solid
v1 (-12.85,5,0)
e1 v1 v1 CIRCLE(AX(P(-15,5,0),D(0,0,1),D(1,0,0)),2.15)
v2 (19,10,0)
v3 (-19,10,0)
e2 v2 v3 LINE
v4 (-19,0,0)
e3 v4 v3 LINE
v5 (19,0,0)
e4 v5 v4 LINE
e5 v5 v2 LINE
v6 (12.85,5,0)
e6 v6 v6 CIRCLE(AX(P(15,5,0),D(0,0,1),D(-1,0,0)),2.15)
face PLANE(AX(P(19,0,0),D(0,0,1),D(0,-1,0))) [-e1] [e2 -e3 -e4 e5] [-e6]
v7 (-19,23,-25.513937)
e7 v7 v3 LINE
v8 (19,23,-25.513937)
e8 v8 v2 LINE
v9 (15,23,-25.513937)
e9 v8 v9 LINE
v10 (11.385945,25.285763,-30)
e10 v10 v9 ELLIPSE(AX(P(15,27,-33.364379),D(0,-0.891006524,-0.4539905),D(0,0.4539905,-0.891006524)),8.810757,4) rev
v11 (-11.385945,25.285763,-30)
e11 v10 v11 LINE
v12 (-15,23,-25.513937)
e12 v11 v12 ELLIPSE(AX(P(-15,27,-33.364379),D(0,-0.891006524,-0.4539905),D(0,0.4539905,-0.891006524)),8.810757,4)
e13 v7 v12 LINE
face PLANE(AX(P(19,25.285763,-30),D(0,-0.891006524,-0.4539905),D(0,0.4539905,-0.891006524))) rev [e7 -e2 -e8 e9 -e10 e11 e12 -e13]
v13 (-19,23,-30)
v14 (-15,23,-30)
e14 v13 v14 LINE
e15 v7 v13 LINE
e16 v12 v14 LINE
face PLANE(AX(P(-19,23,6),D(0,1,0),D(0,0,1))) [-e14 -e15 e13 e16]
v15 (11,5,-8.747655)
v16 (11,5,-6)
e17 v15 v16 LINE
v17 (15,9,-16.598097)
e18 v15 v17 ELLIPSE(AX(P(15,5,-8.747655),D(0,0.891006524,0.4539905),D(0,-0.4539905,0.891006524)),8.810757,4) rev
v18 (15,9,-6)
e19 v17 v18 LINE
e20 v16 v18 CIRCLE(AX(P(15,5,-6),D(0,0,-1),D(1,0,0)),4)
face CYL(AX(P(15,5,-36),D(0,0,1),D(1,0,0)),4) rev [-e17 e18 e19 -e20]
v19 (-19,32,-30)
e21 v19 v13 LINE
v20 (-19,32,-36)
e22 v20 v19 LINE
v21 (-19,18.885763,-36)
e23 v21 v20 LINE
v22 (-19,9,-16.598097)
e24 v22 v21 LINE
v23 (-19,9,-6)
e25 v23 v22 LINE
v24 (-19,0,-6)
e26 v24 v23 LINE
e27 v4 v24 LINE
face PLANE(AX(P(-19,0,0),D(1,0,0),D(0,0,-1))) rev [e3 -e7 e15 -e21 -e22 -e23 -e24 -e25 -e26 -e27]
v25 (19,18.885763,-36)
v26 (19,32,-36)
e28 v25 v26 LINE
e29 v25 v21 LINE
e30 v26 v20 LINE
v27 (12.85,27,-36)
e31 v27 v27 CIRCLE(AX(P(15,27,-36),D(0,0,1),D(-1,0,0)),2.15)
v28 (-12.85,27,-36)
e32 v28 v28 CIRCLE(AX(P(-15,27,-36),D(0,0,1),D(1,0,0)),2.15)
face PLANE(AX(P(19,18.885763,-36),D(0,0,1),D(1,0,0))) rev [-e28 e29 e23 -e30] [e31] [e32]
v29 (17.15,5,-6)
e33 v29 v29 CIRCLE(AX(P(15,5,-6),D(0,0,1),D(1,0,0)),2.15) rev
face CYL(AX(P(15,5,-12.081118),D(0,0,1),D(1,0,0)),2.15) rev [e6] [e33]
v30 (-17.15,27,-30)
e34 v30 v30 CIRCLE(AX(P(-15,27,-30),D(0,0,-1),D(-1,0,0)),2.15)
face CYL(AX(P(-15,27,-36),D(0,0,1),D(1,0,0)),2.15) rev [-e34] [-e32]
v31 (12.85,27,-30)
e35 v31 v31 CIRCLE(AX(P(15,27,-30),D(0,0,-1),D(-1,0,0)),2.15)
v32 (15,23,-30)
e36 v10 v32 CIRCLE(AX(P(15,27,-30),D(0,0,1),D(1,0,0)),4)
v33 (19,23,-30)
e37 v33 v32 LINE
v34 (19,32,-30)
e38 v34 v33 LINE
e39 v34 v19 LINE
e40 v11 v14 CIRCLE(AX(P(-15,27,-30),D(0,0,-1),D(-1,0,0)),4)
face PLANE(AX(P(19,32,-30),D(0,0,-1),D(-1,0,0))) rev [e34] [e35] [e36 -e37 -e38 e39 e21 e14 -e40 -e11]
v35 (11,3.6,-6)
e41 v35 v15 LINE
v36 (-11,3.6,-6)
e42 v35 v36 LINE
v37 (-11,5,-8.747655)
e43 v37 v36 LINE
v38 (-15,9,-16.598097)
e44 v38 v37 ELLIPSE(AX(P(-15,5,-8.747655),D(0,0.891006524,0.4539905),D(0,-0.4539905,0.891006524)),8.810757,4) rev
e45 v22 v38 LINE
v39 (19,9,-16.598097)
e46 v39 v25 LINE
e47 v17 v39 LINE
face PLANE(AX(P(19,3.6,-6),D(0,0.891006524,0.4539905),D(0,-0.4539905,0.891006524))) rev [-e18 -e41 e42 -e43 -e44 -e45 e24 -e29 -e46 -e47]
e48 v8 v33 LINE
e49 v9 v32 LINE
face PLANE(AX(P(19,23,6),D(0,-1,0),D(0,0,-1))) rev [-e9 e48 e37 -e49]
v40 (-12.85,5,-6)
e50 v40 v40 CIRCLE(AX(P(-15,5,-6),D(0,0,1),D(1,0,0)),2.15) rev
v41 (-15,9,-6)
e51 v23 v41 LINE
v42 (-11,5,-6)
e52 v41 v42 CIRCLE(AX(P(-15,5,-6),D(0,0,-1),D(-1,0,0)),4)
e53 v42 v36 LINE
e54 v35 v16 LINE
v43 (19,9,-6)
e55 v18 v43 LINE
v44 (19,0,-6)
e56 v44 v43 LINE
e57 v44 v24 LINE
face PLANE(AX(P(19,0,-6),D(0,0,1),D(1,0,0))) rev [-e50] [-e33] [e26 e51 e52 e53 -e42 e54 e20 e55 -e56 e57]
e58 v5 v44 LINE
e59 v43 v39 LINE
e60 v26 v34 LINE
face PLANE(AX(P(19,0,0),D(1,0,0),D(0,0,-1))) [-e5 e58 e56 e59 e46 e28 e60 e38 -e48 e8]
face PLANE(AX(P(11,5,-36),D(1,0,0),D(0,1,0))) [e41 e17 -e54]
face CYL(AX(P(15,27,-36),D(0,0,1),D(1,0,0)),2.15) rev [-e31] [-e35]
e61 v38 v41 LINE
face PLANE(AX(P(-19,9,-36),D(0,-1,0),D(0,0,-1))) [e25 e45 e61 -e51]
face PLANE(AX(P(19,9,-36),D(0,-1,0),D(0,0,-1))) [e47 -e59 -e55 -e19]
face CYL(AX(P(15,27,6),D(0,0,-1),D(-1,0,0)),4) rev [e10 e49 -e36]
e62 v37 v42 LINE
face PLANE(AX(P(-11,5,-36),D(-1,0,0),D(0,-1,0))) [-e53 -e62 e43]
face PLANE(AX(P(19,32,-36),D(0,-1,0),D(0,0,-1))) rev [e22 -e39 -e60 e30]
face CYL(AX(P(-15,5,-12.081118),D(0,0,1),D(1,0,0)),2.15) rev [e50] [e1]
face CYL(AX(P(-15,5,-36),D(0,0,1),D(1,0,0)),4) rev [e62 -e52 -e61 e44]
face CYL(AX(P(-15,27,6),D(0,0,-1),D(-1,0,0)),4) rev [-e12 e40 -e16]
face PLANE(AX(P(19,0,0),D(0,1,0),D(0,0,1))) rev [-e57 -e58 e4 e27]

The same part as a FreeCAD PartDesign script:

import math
import FreeCAD as App
import Part
import Sketcher
from FreeCAD import Vector
Q = App.Units.Quantity


def add_polygon(sketch, points):
    """Adds a closed chain of lines whose ends are joined by coincident constraints."""
    first, n = sketch.GeometryCount, len(points)
    for a, b in zip(points, points[1:] + points[:1]):
        sketch.addGeometry(Part.LineSegment(App.Vector(*a, 0), App.Vector(*b, 0)), False)
    for i in range(n):
        sketch.addConstraint(Sketcher.Constraint("Coincident", first + i, 2, first + (i + 1) % n, 1))

doc = App.newDocument("Part")
body = doc.addObject("PartDesign::Body", "Body")

# Sketch on YZ plane
sketch1 = body.newObject("Sketcher::SketchObject", "Sketch")
sketch1.AttachmentSupport = (doc.getObject("YZ_Plane"), [""])
sketch1.MapMode = "FlatFace"
add_polygon(sketch1, [(0, 0), (0, -6), (3.6, -6), (18.9, -36), (32, -36), (32, -30), (25.3, -30), (10, 0)])  # lines 0-7
sketch1.addConstraint([
    Sketcher.Constraint("Vertical", 0),
    Sketcher.Constraint("Horizontal", 1),
    Sketcher.Constraint("Horizontal", 3),
    Sketcher.Constraint("Vertical", 4),
    Sketcher.Constraint("Horizontal", 5),
    Sketcher.Constraint("Horizontal", 7),
    Sketcher.Constraint("Coincident", 7, 2, -1, 1),
    Sketcher.Constraint("Parallel", 2, 6),
    Sketcher.Constraint("Equal", 0, 4),
    Sketcher.Constraint("DistanceX", 7, 2, 7, 1, 10.0),
    Sketcher.Constraint("DistanceY", 0, 2, 0, 1, 6.0),
    Sketcher.Constraint("Angle", 2, Q("-63 deg")),
    Sketcher.Constraint("DistanceX", 1, 1, 1, 2, 3.6),
    Sketcher.Constraint("DistanceY", 2, 2, -1, 1, 36.0),
    Sketcher.Constraint("DistanceX", -1, 1, 3, 2, 32.0),
])
pad1 = body.newObject("PartDesign::Pad", "Pad")
pad1.Profile = sketch1
pad1.Length = 38
pad1.Midplane = True

# Sketch on XY plane
sketch2 = body.newObject("Sketcher::SketchObject", "Sketch001")
sketch2.AttachmentSupport = (doc.getObject("XY_Plane"), [""])
sketch2.MapMode = "FlatFace"
sketch2.AttachmentOffset = App.Placement(Vector(0, 0, -30), App.Rotation())
sketch2.addGeometry([
    Part.Circle(Vector(-15, 27, 0), Vector(0, 0, 1), 2.1),
    Part.Circle(Vector(15, 27, 0), Vector(0, 0, 1), 2.1),
], False)
sketch2.addConstraint([
    Sketcher.Constraint("Equal", 0, 1),
    Sketcher.Constraint("Symmetric", 0, 3, 1, 3, -2),
    Sketcher.Constraint("Diameter", 0, 4.3),
    Sketcher.Constraint("DistanceX", 0, 3, -1, 1, 15.0),
    Sketcher.Constraint("DistanceY", -1, 1, 0, 3, 27.0),
])
pocket1 = body.newObject("PartDesign::Pocket", "Pocket")
pocket1.Profile = sketch2
pocket1.Type = "ThroughAll"
pocket1.Midplane = True

# Sketch on XY plane
sketch3 = body.newObject("Sketcher::SketchObject", "Sketch002")
sketch3.AttachmentSupport = (doc.getObject("XY_Plane"), [""])
sketch3.MapMode = "FlatFace"
sketch3.addGeometry([
    Part.Circle(Vector(-15, 5, 0), Vector(0, 0, 1), 2.1),
    Part.Circle(Vector(15, 5, 0), Vector(0, 0, 1), 2.1),
], False)
sketch3.addConstraint([
    Sketcher.Constraint("Equal", 0, 1),
    Sketcher.Constraint("Symmetric", 0, 3, 1, 3, -2),
    Sketcher.Constraint("Diameter", 0, 4.3),
    Sketcher.Constraint("DistanceX", 0, 3, -1, 1, 15.0),
    Sketcher.Constraint("DistanceY", -1, 1, 0, 3, 5.0),
])
pocket2 = body.newObject("PartDesign::Pocket", "Pocket001")
pocket2.Profile = sketch3
pocket2.Length = 6

# Sketch on XY plane
sketch4 = body.newObject("Sketcher::SketchObject", "Sketch003")
sketch4.AttachmentSupport = (doc.getObject("XY_Plane"), [""])
sketch4.MapMode = "FlatFace"
sketch4.AttachmentOffset = App.Placement(Vector(0, 0, -6), App.Rotation())
sketch4.addGeometry([
    Part.LineSegment(Vector(19, 9, 0), Vector(19, 0, 0)),  # 0
    Part.LineSegment(Vector(19, 0, 0), Vector(11, 0, 0)),  # 1
    Part.LineSegment(Vector(11, 0, 0), Vector(11, 5, 0)),  # 2
    Part.ArcOfCircle(Part.Circle(Vector(15, 5, 0), Vector(0, 0, 1), 4), math.radians(90), math.radians(180)),  # 3
    Part.LineSegment(Vector(15, 9, 0), Vector(19, 9, 0)),  # 4
    Part.LineSegment(Vector(-19, 0, 0), Vector(-19, 9, 0)),  # 5
    Part.LineSegment(Vector(-19, 9, 0), Vector(-15, 9, 0)),  # 6
    Part.ArcOfCircle(Part.Circle(Vector(-15, 5, 0), Vector(0, 0, 1), 4), math.radians(0), math.radians(90)),  # 7
    Part.LineSegment(Vector(-11, 5, 0), Vector(-11, 0, 0)),  # 8
    Part.LineSegment(Vector(-11, 0, 0), Vector(-19, 0, 0)),  # 9
], False)
sketch4.addConstraint([
    Sketcher.Constraint("Coincident", 0, 2, 1, 1),
    Sketcher.Constraint("Coincident", 1, 2, 2, 1),
    Sketcher.Constraint("Tangent", 2, 2, 3, 2),
    Sketcher.Constraint("Tangent", 3, 1, 4, 1),
    Sketcher.Constraint("Coincident", 4, 2, 0, 1),
    Sketcher.Constraint("Coincident", 5, 2, 6, 1),
    Sketcher.Constraint("Tangent", 6, 2, 7, 2),
    Sketcher.Constraint("Tangent", 7, 1, 8, 1),
    Sketcher.Constraint("Coincident", 8, 2, 9, 1),
    Sketcher.Constraint("Coincident", 9, 2, 5, 1),
    Sketcher.Constraint("Vertical", 0),
    Sketcher.Constraint("Horizontal", 1),
    Sketcher.Constraint("Vertical", 2),
    Sketcher.Constraint("Horizontal", 4),
    Sketcher.Constraint("Vertical", 5),
    Sketcher.Constraint("Horizontal", 6),
    Sketcher.Constraint("Vertical", 8),
    Sketcher.Constraint("Horizontal", 9),
    Sketcher.Constraint("Equal", 3, 7),
    Sketcher.Constraint("Symmetric", 1, 2, 8, 2, -1, 1),
    Sketcher.Constraint("Symmetric", 4, 2, 5, 2, -2),
    Sketcher.Constraint("PointOnObject", 0, 2, -1),
    Sketcher.Constraint("Radius", 3, 4.0),
    Sketcher.Constraint("DistanceX", 1, 2, 1, 1, 8.0),
    Sketcher.Constraint("DistanceY", 0, 2, 0, 1, 9.0),
    Sketcher.Constraint("DistanceX", -1, 1, 3, 3, 15.0),
])
pocket3 = body.newObject("PartDesign::Pocket", "Pocket002")
pocket3.Profile = sketch4
pocket3.Type = "ThroughAll"

# Sketch on XY plane
sketch5 = body.newObject("Sketcher::SketchObject", "Sketch004")
sketch5.AttachmentSupport = (doc.getObject("XY_Plane"), [""])
sketch5.MapMode = "FlatFace"
sketch5.AttachmentOffset = App.Placement(Vector(0, 0, -30), App.Rotation())
sketch5.addGeometry([
    Part.LineSegment(Vector(19, 32, 0), Vector(11, 32, 0)),  # 0
    Part.LineSegment(Vector(11, 32, 0), Vector(11, 27, 0)),  # 1
    Part.ArcOfCircle(Part.Circle(Vector(15, 27, 0), Vector(0, 0, 1), 4), math.radians(180), math.radians(270)),  # 2
    Part.LineSegment(Vector(15, 23, 0), Vector(19, 23, 0)),  # 3
    Part.LineSegment(Vector(19, 23, 0), Vector(19, 32, 0)),  # 4
    Part.LineSegment(Vector(-19, 23, 0), Vector(-15, 23, 0)),  # 5
    Part.ArcOfCircle(Part.Circle(Vector(-15, 27, 0), Vector(0, 0, 1), 4), math.radians(-90), math.radians(0)),  # 6
    Part.LineSegment(Vector(-11, 27, 0), Vector(-11, 32, 0)),  # 7
    Part.LineSegment(Vector(-11, 32, 0), Vector(-19, 32, 0)),  # 8
    Part.LineSegment(Vector(-19, 32, 0), Vector(-19, 23, 0)),  # 9
], False)
sketch5.addConstraint([
    Sketcher.Constraint("Coincident", 0, 2, 1, 1),
    Sketcher.Constraint("Tangent", 1, 2, 2, 1),
    Sketcher.Constraint("Tangent", 2, 2, 3, 1),
    Sketcher.Constraint("Coincident", 3, 2, 4, 1),
    Sketcher.Constraint("Coincident", 4, 2, 0, 1),
    Sketcher.Constraint("Tangent", 5, 2, 6, 1),
    Sketcher.Constraint("Tangent", 6, 2, 7, 1),
    Sketcher.Constraint("Coincident", 7, 2, 8, 1),
    Sketcher.Constraint("Coincident", 8, 2, 9, 1),
    Sketcher.Constraint("Coincident", 9, 2, 5, 1),
    Sketcher.Constraint("Horizontal", 0),
    Sketcher.Constraint("Vertical", 1),
    Sketcher.Constraint("Horizontal", 3),
    Sketcher.Constraint("Vertical", 4),
    Sketcher.Constraint("Horizontal", 5),
    Sketcher.Constraint("Vertical", 7),
    Sketcher.Constraint("Horizontal", 8),
    Sketcher.Constraint("Vertical", 9),
    Sketcher.Constraint("Equal", 2, 6),
    Sketcher.Constraint("Symmetric", 2, 3, 6, 3, -2),
    Sketcher.Constraint("Symmetric", 4, 2, 8, 2, -2),
    Sketcher.Constraint("Radius", 2, 4.0),
    Sketcher.Constraint("DistanceX", 0, 2, 0, 1, 8.0),
    Sketcher.Constraint("DistanceY", 1, 2, 1, 1, 5.0),
    Sketcher.Constraint("DistanceX", -1, 1, 2, 3, 15.0),
    Sketcher.Constraint("DistanceY", -1, 1, 2, 3, 27.0),
])
pocket4 = body.newObject("PartDesign::Pocket", "Pocket003")
pocket4.Profile = sketch5
pocket4.Length = 36
pocket4.Reversed = True

doc.recompute()
